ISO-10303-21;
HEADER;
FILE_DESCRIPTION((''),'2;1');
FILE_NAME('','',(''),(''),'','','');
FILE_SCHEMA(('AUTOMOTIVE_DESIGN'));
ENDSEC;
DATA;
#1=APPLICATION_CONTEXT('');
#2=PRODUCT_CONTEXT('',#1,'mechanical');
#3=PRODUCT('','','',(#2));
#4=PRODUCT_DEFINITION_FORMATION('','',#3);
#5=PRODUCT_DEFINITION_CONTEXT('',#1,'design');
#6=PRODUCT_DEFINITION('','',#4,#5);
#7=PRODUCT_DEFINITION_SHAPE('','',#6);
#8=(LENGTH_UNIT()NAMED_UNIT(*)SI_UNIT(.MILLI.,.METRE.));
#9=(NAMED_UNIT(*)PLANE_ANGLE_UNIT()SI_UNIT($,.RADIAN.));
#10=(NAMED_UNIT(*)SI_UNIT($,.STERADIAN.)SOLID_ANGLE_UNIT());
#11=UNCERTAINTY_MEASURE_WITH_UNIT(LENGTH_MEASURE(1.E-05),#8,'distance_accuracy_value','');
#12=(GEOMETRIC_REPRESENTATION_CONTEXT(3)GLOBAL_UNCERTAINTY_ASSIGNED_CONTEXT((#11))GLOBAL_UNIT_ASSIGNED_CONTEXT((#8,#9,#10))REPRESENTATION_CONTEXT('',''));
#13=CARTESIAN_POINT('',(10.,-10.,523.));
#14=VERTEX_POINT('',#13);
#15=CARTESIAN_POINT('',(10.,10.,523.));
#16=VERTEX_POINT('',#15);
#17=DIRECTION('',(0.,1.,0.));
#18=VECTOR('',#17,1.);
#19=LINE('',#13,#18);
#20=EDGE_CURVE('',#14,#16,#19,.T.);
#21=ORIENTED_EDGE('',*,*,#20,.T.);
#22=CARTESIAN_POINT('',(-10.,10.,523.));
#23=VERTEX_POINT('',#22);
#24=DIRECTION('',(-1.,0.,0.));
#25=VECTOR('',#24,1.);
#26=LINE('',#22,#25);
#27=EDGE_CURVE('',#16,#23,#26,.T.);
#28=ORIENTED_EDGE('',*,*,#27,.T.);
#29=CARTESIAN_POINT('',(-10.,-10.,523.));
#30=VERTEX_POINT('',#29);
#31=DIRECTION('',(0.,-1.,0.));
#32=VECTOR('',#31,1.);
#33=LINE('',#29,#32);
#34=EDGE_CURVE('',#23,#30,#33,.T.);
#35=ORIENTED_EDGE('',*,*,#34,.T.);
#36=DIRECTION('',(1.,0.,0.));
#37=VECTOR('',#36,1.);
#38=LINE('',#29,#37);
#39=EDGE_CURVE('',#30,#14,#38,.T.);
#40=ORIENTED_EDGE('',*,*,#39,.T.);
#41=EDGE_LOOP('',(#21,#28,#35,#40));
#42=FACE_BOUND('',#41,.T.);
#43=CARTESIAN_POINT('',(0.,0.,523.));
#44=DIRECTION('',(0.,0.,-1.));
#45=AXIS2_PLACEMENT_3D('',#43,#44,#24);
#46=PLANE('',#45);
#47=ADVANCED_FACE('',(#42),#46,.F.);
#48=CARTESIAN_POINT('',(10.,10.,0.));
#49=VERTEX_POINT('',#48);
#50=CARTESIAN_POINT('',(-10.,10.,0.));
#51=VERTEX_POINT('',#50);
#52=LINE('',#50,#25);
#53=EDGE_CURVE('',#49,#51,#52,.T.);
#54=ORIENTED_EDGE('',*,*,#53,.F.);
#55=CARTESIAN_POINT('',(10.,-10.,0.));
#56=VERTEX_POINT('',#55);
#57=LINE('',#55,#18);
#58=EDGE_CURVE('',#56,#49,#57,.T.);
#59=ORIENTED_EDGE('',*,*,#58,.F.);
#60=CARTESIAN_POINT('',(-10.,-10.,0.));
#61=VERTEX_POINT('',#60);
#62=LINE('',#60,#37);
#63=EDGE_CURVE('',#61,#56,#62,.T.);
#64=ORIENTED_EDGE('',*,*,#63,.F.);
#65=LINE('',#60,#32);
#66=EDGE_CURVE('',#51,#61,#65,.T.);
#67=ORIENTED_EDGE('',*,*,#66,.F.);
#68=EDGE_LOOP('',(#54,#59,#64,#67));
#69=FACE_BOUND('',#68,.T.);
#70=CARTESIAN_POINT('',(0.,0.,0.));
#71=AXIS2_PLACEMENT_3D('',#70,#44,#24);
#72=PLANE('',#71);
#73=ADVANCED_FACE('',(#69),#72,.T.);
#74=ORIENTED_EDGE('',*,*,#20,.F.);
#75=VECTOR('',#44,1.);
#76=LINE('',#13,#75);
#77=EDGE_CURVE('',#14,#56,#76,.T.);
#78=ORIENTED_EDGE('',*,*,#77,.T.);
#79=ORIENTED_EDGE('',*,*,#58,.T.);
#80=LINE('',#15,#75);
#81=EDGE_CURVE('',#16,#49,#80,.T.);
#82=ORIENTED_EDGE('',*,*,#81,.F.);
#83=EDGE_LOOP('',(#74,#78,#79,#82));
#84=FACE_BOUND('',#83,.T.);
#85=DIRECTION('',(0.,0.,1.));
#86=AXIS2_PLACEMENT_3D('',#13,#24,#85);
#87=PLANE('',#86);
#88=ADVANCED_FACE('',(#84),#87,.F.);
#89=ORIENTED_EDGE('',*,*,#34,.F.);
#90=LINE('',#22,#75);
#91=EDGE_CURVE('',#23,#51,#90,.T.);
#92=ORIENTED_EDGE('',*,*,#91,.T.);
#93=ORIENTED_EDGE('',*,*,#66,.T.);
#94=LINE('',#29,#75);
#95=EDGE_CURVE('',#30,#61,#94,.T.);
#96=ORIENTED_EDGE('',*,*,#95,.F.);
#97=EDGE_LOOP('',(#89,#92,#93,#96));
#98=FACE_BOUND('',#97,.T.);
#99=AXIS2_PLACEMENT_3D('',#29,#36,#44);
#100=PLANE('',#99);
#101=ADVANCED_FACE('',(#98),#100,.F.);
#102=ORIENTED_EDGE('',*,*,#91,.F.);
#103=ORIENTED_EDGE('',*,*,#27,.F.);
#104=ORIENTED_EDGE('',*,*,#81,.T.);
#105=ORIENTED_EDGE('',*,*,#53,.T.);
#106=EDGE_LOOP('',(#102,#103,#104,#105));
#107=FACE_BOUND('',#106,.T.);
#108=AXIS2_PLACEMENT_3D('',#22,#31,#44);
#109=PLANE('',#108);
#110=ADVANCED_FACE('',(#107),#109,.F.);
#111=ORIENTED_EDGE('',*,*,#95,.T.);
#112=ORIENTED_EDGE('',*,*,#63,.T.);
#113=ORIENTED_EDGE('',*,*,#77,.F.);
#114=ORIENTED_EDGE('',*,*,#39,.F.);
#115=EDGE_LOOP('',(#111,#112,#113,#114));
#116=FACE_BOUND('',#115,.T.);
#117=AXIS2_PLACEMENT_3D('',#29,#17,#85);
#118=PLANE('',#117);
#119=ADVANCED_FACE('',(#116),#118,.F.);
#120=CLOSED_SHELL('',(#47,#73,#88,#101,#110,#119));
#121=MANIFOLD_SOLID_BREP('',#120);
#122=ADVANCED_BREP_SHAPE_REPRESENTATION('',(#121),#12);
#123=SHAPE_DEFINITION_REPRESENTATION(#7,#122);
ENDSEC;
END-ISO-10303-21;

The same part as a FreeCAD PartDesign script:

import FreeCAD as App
import Part
import Sketcher
from FreeCAD import Vector


def add_polygon(sketch, points):
    """Adds a closed chain of lines whose ends are joined by coincident constraints."""
    first, n = sketch.GeometryCount, len(points)
    for a, b in zip(points, points[1:] + points[:1]):
        sketch.addGeometry(Part.LineSegment(App.Vector(*a, 0), App.Vector(*b, 0)), False)
    for i in range(n):
        sketch.addConstraint(Sketcher.Constraint("Coincident", first + i, 2, first + (i + 1) % n, 1))

doc = App.newDocument("Part")
body = doc.addObject("PartDesign::Body", "Body")

sketch1 = doc.addObject("Sketcher::SketchObject", "Sketch")
body.addObject(sketch1)
sketch1.AttachmentSupport = (doc.XY_Plane, [""])
sketch1.MapMode = "FlatFace"
add_polygon(sketch1, [(-10, 10), (-10, -10), (10, -10), (10, 10)])
sketch1.addConstraint([
    Sketcher.Constraint("Vertical", 0),
    Sketcher.Constraint("Horizontal", 1),
    Sketcher.Constraint("Vertical", 2),
    Sketcher.Constraint("Horizontal", 3),
    Sketcher.Constraint("Symmetric", 0, 2, 2, 2, -1, 1),
    Sketcher.Constraint("Equal", 3, 0),
    Sketcher.Constraint("DistanceX", 1, 1, 1, 2, 20.0),
])
pad1 = doc.addObject("PartDesign::Pad", "Pad")
body.addObject(pad1)
pad1.Profile = sketch1
pad1.Length = 523

doc.recompute()
